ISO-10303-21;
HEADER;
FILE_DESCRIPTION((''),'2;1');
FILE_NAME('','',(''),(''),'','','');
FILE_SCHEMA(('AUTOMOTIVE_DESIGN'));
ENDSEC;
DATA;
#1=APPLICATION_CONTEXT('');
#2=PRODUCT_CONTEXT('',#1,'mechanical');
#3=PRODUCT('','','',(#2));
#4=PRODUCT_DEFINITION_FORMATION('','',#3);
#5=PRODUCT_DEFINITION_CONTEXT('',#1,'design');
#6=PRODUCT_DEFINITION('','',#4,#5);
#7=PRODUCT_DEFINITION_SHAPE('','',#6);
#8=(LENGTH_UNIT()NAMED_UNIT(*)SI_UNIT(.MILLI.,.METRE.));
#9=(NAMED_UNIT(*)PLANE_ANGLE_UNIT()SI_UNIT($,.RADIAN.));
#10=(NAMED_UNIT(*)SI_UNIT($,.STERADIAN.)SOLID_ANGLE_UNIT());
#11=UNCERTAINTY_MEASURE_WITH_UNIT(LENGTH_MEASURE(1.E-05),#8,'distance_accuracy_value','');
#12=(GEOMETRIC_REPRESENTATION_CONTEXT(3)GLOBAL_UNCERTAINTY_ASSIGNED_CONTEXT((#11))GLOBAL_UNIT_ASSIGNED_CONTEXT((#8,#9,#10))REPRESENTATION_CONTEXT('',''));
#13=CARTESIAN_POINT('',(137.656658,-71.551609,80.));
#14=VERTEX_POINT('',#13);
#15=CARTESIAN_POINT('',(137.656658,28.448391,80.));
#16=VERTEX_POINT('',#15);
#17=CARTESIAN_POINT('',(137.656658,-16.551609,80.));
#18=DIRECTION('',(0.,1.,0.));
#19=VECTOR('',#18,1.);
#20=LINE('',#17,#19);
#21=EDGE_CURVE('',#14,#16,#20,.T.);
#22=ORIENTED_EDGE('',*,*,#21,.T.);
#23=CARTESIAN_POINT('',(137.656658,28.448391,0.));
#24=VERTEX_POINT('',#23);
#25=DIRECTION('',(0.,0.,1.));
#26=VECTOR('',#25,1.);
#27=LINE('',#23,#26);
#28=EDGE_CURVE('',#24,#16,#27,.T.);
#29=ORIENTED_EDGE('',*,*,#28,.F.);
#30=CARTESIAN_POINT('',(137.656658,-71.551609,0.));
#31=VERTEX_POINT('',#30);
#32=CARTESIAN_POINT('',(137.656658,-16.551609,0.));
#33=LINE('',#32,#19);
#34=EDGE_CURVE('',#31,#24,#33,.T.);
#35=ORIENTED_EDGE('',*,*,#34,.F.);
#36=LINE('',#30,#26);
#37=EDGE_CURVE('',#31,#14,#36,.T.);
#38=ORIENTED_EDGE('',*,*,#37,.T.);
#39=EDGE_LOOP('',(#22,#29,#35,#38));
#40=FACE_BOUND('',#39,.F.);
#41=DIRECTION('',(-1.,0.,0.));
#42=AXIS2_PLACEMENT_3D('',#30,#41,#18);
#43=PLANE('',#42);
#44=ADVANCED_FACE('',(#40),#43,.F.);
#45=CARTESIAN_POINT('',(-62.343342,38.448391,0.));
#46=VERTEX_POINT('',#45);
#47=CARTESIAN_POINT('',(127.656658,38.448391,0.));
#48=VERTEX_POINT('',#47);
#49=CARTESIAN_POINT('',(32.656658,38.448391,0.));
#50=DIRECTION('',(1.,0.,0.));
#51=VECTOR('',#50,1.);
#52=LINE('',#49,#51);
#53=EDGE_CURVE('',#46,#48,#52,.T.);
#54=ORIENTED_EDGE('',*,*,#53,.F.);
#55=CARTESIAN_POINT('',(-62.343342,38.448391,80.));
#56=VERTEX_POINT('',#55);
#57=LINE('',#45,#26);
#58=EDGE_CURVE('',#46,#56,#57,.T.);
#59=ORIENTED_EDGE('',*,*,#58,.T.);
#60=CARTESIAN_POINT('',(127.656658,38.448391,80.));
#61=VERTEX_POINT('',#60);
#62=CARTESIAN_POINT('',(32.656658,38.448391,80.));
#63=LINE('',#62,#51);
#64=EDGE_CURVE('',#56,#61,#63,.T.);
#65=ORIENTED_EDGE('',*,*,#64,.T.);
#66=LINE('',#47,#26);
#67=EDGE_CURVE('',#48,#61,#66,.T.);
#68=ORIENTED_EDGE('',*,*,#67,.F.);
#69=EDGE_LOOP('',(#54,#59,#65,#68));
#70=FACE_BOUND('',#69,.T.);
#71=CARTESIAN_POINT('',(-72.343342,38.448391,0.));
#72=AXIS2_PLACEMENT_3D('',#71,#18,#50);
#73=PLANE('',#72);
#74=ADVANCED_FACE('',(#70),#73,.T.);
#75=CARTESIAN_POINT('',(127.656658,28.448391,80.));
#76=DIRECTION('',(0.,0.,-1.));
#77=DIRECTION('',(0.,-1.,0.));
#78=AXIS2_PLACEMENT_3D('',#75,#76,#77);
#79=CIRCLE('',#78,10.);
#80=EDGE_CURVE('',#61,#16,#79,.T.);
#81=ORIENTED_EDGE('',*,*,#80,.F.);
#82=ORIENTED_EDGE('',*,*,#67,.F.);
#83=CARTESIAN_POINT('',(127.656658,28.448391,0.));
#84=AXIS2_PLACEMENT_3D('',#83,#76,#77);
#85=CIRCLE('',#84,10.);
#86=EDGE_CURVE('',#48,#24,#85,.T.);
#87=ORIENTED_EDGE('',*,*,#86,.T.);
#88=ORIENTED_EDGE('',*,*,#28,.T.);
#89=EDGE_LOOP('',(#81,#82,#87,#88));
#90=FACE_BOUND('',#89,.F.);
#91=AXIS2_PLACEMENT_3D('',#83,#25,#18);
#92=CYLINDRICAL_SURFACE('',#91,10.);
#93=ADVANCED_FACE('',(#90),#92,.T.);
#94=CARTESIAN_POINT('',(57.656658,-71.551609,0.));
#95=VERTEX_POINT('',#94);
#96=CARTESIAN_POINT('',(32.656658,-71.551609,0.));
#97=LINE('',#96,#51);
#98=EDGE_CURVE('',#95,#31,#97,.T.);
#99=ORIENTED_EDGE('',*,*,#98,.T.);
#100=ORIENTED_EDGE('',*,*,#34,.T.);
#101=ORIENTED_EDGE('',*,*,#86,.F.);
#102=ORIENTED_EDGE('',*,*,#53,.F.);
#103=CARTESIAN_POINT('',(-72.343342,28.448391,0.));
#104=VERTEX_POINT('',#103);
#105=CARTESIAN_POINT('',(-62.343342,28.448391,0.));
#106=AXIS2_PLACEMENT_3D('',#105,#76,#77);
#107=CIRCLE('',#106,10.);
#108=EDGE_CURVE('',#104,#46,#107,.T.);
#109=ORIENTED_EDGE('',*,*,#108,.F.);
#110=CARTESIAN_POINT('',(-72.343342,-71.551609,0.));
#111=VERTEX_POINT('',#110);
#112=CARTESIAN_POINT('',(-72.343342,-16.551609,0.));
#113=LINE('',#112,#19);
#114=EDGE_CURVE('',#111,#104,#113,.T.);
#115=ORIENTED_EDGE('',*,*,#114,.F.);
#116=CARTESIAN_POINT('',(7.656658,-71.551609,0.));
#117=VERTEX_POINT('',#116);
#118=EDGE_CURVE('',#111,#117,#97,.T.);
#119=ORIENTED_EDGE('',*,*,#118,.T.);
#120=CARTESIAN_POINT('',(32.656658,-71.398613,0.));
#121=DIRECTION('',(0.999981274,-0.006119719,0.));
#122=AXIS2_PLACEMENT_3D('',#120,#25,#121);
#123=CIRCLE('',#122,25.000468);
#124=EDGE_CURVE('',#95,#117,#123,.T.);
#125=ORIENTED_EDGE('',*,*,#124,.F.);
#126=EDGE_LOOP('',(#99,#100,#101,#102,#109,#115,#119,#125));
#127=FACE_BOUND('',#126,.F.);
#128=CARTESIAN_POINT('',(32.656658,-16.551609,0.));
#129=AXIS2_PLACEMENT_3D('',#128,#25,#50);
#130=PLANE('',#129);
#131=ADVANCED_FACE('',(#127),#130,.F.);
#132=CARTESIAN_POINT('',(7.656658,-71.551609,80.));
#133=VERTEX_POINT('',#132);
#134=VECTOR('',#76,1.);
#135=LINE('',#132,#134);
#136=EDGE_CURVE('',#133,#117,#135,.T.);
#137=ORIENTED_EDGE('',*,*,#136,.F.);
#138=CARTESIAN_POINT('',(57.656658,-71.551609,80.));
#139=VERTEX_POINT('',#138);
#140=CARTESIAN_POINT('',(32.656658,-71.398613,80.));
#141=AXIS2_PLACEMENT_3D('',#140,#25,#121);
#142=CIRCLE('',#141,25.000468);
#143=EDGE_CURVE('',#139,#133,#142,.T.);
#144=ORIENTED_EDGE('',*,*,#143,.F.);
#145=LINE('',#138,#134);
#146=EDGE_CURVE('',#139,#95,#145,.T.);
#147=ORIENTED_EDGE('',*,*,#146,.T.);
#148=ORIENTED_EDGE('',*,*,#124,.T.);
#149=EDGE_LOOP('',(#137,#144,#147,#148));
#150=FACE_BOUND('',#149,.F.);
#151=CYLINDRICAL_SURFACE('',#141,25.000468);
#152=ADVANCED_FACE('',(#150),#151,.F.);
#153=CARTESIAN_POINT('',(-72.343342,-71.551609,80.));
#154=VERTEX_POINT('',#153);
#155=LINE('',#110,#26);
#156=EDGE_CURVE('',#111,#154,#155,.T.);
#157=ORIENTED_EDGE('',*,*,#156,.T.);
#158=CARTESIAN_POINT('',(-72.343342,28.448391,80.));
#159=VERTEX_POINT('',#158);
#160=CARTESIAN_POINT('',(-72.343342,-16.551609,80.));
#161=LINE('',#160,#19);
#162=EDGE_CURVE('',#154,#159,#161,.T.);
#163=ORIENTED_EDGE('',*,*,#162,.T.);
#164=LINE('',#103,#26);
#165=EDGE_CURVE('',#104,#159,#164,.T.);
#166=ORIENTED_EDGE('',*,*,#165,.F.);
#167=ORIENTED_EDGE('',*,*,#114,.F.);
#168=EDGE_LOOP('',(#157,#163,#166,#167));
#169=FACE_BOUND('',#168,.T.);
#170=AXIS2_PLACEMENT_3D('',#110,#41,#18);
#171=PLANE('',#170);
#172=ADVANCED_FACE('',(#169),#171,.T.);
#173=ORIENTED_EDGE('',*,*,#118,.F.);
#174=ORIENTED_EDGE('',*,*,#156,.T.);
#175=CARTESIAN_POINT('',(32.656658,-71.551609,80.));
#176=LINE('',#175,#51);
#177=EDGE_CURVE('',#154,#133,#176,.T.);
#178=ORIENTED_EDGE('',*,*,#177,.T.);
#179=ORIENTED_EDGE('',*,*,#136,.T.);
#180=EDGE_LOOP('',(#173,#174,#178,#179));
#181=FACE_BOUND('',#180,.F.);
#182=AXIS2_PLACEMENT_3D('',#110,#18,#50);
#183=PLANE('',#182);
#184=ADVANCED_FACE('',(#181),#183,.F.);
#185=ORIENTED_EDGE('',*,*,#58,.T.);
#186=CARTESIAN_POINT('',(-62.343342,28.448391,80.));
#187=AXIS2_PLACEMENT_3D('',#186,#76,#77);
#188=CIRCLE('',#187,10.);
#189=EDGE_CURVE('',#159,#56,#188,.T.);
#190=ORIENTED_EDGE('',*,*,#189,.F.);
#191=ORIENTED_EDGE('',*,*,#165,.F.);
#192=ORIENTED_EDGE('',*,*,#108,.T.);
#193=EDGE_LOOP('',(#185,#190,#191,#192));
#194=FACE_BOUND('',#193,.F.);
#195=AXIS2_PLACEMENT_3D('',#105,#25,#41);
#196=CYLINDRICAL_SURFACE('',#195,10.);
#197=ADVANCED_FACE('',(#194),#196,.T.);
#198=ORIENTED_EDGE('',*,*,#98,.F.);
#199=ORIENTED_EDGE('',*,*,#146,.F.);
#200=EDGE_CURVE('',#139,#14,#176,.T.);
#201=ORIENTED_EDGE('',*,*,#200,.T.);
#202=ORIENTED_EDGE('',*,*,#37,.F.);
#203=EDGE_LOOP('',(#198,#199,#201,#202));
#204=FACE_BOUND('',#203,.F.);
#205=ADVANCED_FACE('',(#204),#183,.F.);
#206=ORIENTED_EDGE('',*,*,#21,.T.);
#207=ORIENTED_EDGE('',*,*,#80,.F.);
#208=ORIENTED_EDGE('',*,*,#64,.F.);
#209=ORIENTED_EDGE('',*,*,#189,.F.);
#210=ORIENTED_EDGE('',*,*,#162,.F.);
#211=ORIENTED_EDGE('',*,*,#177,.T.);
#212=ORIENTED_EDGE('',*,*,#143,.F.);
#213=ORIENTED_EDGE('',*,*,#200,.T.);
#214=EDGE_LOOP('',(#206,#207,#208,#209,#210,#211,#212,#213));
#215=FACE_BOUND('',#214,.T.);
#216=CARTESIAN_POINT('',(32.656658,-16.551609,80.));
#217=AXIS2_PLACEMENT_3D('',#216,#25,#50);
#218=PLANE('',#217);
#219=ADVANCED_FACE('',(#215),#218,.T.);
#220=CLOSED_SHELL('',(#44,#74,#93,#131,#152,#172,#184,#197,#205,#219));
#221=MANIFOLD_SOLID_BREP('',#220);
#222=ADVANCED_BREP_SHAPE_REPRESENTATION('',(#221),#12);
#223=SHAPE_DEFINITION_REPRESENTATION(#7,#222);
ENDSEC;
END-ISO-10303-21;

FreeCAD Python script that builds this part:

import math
import FreeCAD as App
import Part
import Sketcher
from FreeCAD import Vector


def edges_at(feature, points):
    """Names of the edges that pass closest to the given points."""
    edges = feature.Shape.Edges
    near = lambda p: min(range(len(edges)), key=lambda i: edges[i].distToShape(Part.Vertex(*p))[0])
    return sorted({f"Edge{near(p) + 1}" for p in points})

doc = App.newDocument("Part")
body = doc.addObject("PartDesign::Body", "Body")

# Sketch on XY plane
sketch1 = doc.addObject("Sketcher::SketchObject", "Sketch")
body.addObject(sketch1)
sketch1.AttachmentSupport = (doc.XY_Plane, [""])
sketch1.MapMode = "FlatFace"
sketch1.addGeometry([
    Part.LineSegment(Vector(-72.343342, 38.448391, 0), Vector(-72.343342, -71.551609, 0)),
    Part.LineSegment(Vector(-72.343342, -71.551609, 0), Vector(137.656658, -71.551609, 0)),
    Part.LineSegment(Vector(137.656658, -71.551609, 0), Vector(137.656658, 38.448391, 0)),
    Part.LineSegment(Vector(137.656658, 38.448391, 0), Vector(-72.343342, 38.448391, 0)),
], False)
sketch1.addConstraint([
    Sketcher.Constraint("Coincident", 0, 2, 1, 1),
    Sketcher.Constraint("Coincident", 1, 2, 2, 1),
    Sketcher.Constraint("Coincident", 2, 2, 3, 1),
    Sketcher.Constraint("Coincident", 3, 2, 0, 1),
    Sketcher.Constraint("Vertical", 0),
    Sketcher.Constraint("Horizontal", 1),
    Sketcher.Constraint("Vertical", 2),
    Sketcher.Constraint("Horizontal", 3),
    Sketcher.Constraint("DistanceX", 1, 1, 1, 2, 210.0),
    Sketcher.Constraint("DistanceY", 0, 2, 0, 1, 110.0),
    Sketcher.Constraint("DistanceY", 0, 2, -1, 1, 71.551609),
    Sketcher.Constraint("DistanceX", -1, 1, 1, 2, 137.656658),
])
pad1 = doc.addObject("PartDesign::Pad", "Pad")
body.addObject(pad1)
pad1.Profile = sketch1
pad1.Length = 80

# Sketch on XY plane
sketch2 = doc.addObject("Sketcher::SketchObject", "Sketch001")
body.addObject(sketch2)
sketch2.AttachmentSupport = (doc.XY_Plane, [""])
sketch2.MapMode = "FlatFace"
sketch2.AttachmentOffset = App.Placement(Vector(0, 0, 80), App.Rotation())
sketch2.addGeometry([
    Part.LineSegment(Vector(7.656658, -71.551609, 0), Vector(57.656658, -71.551609, 0)),
    Part.ArcOfCircle(Part.Circle(Vector(32.656658, -71.398613, 0), Vector(0, 0, 1), 25.000468), math.radians(-0.350636), math.radians(180.350636)),
], False)
sketch2.addConstraint([
    Sketcher.Constraint("Coincident", 0, 1, 1, 2),
    Sketcher.Constraint("Coincident", 1, 1, 0, 2),
    Sketcher.Constraint("Horizontal", 0),
    Sketcher.Constraint("DistanceX", 0, 1, 0, 2, 50.0),
    Sketcher.Constraint("Radius", 1, 25.000468),
    Sketcher.Constraint("DistanceX", -1, 1, 0, 1, 7.656658),
    Sketcher.Constraint("DistanceY", 0, 1, -1, 1, 71.551609),
])
pocket1 = doc.addObject("PartDesign::Pocket", "Pocket")
body.addObject(pocket1)
pocket1.Profile = sketch2
pocket1.Length = 80
doc.recompute()

fillet = doc.addObject("PartDesign::Fillet", "Fillet")
body.addObject(fillet)
fillet.Base = (pocket1, edges_at(pocket1, [(-72.343, 38.448, 40), (137.657, 38.448, 40)]))
fillet.Radius = 10

doc.recompute()
